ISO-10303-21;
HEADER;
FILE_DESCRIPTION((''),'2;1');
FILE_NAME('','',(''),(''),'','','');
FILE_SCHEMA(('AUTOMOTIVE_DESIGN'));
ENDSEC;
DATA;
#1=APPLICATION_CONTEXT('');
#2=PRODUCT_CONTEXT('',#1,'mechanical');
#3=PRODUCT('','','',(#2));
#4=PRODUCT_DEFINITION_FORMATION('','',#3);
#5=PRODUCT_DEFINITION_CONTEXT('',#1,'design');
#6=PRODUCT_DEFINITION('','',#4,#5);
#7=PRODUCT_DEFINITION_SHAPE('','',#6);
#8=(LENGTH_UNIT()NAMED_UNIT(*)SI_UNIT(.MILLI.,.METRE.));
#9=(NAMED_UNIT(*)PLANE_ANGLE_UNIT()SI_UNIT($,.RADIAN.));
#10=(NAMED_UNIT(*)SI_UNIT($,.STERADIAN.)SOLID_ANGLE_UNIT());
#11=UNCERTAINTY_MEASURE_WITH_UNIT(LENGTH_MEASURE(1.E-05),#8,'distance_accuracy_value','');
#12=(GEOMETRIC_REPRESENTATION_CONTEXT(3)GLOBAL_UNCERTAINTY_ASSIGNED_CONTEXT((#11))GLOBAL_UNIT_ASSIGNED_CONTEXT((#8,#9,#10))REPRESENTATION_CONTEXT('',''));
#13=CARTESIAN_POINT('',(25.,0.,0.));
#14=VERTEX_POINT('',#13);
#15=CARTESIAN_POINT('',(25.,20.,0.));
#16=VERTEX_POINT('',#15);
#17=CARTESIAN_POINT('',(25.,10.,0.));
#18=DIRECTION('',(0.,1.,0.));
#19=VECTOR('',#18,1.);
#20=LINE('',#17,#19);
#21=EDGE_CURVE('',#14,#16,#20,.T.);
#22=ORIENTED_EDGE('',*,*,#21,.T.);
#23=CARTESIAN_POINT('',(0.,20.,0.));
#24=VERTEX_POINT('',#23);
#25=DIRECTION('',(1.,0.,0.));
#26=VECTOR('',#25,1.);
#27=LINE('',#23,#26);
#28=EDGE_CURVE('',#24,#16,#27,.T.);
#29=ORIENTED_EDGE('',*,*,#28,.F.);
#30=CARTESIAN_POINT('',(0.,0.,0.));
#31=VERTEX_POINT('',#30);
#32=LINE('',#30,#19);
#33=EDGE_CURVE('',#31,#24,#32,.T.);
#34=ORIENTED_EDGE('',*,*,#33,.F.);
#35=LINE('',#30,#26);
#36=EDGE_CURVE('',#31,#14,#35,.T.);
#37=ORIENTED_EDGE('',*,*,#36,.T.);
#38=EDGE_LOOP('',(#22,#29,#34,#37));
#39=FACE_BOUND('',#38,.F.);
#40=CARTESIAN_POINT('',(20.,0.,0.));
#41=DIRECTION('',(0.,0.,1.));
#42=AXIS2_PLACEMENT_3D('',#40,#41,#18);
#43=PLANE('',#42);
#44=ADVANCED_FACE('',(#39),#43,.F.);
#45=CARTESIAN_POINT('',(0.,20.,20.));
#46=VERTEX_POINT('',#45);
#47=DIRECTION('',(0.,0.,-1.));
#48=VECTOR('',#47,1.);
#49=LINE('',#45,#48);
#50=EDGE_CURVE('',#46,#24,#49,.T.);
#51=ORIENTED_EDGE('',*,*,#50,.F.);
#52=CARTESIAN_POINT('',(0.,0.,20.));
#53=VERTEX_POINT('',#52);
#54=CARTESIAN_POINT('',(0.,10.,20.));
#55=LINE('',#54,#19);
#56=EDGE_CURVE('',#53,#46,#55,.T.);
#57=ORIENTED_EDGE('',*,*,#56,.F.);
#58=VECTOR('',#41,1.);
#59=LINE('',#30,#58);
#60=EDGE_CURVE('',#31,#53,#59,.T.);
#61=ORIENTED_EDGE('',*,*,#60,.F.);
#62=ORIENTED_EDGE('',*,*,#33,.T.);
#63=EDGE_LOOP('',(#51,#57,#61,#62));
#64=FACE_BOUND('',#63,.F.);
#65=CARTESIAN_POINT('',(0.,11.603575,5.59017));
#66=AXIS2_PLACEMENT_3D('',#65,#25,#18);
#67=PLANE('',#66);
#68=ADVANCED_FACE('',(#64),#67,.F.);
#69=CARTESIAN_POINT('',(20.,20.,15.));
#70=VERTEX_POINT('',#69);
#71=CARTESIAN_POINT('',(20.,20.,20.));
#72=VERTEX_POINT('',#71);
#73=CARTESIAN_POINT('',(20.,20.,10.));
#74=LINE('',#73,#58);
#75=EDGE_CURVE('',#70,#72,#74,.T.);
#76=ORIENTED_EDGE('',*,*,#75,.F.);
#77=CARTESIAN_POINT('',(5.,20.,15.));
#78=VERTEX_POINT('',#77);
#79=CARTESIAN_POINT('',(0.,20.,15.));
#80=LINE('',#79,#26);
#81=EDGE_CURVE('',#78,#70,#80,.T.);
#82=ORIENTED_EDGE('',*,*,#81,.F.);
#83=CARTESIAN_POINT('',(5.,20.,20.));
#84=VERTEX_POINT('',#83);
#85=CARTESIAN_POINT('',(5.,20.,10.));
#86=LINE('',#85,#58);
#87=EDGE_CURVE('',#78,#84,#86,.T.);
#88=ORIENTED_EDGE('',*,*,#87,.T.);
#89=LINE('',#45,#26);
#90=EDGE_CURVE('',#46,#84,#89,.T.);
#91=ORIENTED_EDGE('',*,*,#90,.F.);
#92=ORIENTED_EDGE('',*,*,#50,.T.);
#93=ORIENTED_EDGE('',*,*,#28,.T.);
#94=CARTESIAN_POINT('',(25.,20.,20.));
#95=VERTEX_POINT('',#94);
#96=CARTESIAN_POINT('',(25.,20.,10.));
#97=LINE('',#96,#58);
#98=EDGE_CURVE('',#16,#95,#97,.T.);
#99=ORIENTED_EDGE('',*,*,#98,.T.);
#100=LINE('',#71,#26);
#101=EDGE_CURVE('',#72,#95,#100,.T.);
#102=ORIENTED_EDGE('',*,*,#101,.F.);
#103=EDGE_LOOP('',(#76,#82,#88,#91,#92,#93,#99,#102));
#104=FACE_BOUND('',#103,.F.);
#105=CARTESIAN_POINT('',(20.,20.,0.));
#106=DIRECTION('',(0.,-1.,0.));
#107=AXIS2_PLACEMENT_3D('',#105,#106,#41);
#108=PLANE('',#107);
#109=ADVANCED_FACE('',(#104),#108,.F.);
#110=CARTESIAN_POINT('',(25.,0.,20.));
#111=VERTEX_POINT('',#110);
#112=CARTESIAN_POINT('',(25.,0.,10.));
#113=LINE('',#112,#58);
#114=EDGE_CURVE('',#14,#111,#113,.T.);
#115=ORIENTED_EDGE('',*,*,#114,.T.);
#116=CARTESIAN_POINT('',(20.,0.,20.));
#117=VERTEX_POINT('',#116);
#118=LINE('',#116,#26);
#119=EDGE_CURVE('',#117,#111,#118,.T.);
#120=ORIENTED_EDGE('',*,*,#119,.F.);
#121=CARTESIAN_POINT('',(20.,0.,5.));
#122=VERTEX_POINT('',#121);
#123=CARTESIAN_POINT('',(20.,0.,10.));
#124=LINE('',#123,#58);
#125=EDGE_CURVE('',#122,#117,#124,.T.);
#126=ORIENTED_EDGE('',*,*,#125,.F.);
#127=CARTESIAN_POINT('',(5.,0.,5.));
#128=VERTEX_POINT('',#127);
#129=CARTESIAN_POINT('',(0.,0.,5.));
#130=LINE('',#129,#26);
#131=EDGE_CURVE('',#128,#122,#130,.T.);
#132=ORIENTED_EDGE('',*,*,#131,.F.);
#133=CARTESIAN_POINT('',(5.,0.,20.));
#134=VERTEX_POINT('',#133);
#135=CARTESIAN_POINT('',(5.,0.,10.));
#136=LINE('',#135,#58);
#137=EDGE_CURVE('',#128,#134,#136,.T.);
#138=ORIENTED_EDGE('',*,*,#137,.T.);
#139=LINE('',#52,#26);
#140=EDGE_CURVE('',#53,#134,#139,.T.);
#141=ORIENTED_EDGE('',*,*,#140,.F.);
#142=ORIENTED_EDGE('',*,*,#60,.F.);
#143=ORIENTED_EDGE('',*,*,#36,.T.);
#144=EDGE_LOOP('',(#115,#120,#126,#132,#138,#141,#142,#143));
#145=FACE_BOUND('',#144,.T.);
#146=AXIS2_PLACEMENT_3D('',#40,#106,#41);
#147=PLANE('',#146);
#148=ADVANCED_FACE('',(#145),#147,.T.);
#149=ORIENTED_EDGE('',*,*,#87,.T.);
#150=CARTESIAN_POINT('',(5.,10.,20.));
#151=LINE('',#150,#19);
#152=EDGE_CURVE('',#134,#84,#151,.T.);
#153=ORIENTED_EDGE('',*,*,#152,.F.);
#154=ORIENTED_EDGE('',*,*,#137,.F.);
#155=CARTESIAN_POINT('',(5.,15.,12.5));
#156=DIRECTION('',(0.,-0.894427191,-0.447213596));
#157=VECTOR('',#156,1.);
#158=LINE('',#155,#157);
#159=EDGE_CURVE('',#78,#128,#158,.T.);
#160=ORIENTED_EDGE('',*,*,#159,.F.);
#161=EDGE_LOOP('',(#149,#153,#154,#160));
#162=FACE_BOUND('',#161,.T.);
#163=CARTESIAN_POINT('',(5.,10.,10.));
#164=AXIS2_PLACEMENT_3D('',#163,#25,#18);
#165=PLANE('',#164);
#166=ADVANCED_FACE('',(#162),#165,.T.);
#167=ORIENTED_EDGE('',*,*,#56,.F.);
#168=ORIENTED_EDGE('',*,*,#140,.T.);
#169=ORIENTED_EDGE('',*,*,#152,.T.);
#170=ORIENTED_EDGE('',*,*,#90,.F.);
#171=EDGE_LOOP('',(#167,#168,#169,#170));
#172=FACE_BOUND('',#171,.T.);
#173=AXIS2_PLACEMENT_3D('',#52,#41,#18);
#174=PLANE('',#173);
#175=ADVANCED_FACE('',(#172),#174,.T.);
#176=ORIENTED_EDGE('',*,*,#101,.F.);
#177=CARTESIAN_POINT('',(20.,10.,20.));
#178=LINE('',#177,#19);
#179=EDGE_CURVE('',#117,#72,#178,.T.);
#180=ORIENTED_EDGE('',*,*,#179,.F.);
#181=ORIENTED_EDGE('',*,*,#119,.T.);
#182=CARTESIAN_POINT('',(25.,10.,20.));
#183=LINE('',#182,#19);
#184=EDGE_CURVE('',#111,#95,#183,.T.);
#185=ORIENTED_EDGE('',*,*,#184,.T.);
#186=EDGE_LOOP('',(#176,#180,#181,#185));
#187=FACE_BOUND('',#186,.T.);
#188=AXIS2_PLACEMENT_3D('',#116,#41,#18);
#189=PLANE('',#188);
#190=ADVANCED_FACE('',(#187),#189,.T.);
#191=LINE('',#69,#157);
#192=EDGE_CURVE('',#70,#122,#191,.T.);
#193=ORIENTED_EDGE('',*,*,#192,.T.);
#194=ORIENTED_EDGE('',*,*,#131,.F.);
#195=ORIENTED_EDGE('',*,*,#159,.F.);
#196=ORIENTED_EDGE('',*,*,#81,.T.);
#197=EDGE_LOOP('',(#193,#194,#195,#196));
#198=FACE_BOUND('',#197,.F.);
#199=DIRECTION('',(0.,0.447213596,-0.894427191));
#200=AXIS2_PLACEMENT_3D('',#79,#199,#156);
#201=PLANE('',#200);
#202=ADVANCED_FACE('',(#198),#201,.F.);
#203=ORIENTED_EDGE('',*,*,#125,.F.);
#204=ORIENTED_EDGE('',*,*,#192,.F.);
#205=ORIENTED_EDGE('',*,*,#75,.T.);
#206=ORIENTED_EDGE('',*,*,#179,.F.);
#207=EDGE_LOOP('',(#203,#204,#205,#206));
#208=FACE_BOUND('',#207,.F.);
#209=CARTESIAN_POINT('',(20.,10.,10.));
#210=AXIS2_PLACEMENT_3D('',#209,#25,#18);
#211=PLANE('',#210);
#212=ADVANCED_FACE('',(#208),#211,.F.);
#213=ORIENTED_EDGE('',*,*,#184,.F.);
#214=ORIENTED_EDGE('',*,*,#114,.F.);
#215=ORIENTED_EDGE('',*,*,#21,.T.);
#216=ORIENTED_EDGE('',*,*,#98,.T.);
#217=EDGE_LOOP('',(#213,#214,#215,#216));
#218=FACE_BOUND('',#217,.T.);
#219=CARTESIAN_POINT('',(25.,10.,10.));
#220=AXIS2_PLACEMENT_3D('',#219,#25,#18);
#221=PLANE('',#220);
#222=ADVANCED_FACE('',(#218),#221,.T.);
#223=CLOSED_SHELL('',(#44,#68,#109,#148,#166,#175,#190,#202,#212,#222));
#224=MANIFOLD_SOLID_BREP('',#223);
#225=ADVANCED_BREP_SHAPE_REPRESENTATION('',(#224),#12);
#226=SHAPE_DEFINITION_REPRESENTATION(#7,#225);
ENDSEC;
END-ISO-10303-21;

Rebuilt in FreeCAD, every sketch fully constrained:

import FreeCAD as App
import Part
import Sketcher

V = App.Vector
Q = App.Units.Quantity


def add_polygon(sketch, points):
    """Adds a closed chain of lines whose ends are joined by coincident constraints."""
    first, n = sketch.GeometryCount, len(points)
    for a, b in zip(points, points[1:] + points[:1]):
        sketch.addGeometry(Part.LineSegment(App.Vector(*a, 0), App.Vector(*b, 0)), False)
    for i in range(n):
        sketch.addConstraint(Sketcher.Constraint("Coincident", first + i, 2, first + (i + 1) % n, 1))

doc = App.newDocument("Part")
body = doc.addObject("PartDesign::Body", "Body")

# Sketch on YZ plane
sketch1 = doc.addObject("Sketcher::SketchObject", "Sketch")
body.addObject(sketch1)
sketch1.AttachmentSupport = (doc.YZ_Plane, [""])
sketch1.MapMode = "FlatFace"
add_polygon(sketch1, [(20, 15), (0, 5), (0, 0), (20, 0)])  # lines 0-3
sketch1.addConstraint([
    Sketcher.Constraint("Vertical", 1),
    Sketcher.Constraint("Horizontal", 2),
    Sketcher.Constraint("Vertical", 3),
    Sketcher.Constraint("Coincident", 1, 2, -1, 1),
    Sketcher.Constraint("DistanceX", 2, 1, 2, 2, Q("20 mm")),
    Sketcher.Constraint("DistanceY", 1, 2, 1, 1, Q("5 mm")),
    Sketcher.Constraint("DistanceY", 3, 1, 3, 2, Q("15 mm")),
])
pad1 = doc.addObject("PartDesign::Pad", "Pad")
body.addObject(pad1)
pad1.Profile = sketch1
pad1.Length = 20

# Sketch on YZ plane
sketch2 = doc.addObject("Sketcher::SketchObject", "Sketch001")
body.addObject(sketch2)
sketch2.AttachmentSupport = (doc.YZ_Plane, [""])
sketch2.MapMode = "FlatFace"
add_polygon(sketch2, [(0, 20), (0, 0), (20, 0), (20, 20)])  # lines 0-3
sketch2.addConstraint([
    Sketcher.Constraint("Vertical", 0),
    Sketcher.Constraint("Horizontal", 1),
    Sketcher.Constraint("Vertical", 2),
    Sketcher.Constraint("Horizontal", 3),
    Sketcher.Constraint("Coincident", 0, 2, -1, 1),
    Sketcher.Constraint("Equal", 3, 0),
    Sketcher.Constraint("DistanceX", 1, 1, 1, 2, Q("20 mm")),
])
pad2 = doc.addObject("PartDesign::Pad", "Pad001")
body.addObject(pad2)
pad2.Profile = sketch2
pad2.Length = 5

# Sketch on YZ plane
sketch3 = doc.addObject("Sketcher::SketchObject", "Sketch002")
body.addObject(sketch3)
sketch3.AttachmentSupport = (doc.YZ_Plane, [""])
sketch3.MapMode = "FlatFace"
sketch3.AttachmentOffset = App.Placement(V(0, 0, 20), App.Rotation())
add_polygon(sketch3, [(0, 20), (0, 0), (20, 0), (20, 20)])  # lines 0-3
sketch3.addConstraint([
    Sketcher.Constraint("Vertical", 0),
    Sketcher.Constraint("Horizontal", 1),
    Sketcher.Constraint("Vertical", 2),
    Sketcher.Constraint("Horizontal", 3),
    Sketcher.Constraint("Coincident", 0, 2, -1, 1),
    Sketcher.Constraint("Equal", 3, 0),
    Sketcher.Constraint("DistanceX", 1, 1, 1, 2, Q("20 mm")),
])
pad3 = doc.addObject("PartDesign::Pad", "Pad002")
body.addObject(pad3)
pad3.Profile = sketch3
pad3.Length = 5

doc.recompute()
